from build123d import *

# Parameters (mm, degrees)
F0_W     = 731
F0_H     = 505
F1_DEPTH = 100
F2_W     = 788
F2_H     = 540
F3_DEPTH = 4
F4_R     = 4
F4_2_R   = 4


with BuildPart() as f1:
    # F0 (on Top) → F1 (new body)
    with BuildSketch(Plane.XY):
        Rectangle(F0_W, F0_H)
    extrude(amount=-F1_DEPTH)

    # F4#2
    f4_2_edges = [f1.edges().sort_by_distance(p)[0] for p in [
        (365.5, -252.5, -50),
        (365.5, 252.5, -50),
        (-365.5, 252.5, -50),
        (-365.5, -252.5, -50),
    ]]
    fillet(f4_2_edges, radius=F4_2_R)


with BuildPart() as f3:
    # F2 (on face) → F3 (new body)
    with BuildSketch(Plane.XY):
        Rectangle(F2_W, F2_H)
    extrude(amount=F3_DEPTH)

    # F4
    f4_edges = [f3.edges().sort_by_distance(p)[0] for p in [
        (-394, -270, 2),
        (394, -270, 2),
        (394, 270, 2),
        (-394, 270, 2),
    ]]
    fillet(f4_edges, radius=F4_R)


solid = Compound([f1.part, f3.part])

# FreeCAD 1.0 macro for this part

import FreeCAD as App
import Part
import Sketcher
from FreeCAD import Vector
Q = App.Units.Quantity


def edges_at(feature, points):
    """Names of the edges that pass closest to the given points."""
    edges = feature.Shape.Edges
    near = lambda p: min(range(len(edges)), key=lambda i: edges[i].distToShape(Part.Vertex(*p))[0])
    return sorted({f"Edge{near(p) + 1}" for p in points})


def add_polygon(sketch, points):
    """Adds a closed chain of lines whose ends are joined by coincident constraints."""
    first, n = sketch.GeometryCount, len(points)
    for a, b in zip(points, points[1:] + points[:1]):
        sketch.addGeometry(Part.LineSegment(App.Vector(*a, 0), App.Vector(*b, 0)), False)
    for i in range(n):
        sketch.addConstraint(Sketcher.Constraint("Coincident", first + i, 2, first + (i + 1) % n, 1))

doc = App.newDocument("Part")
body = doc.addObject("PartDesign::Body", "Body")

# Sketch on XY plane
sketch1 = doc.addObject("Sketcher::SketchObject", "Sketch")
body.addObject(sketch1)
sketch1.AttachmentSupport = (doc.XY_Plane, [""])
sketch1.MapMode = "FlatFace"
add_polygon(sketch1, [(-365.5, 252.5), (-365.5, -252.5), (365.5, -252.5), (365.5, 252.5)])  # lines 0-3
sketch1.addConstraint(Sketcher.Constraint("Vertical", 0))
sketch1.addConstraint(Sketcher.Constraint("Horizontal", 1))
sketch1.addConstraint(Sketcher.Constraint("Vertical", 2))
sketch1.addConstraint(Sketcher.Constraint("Horizontal", 3))
sketch1.addConstraint(Sketcher.Constraint("Symmetric", 0, 2, 2, 2, -1, 1))
sketch1.addConstraint(Sketcher.Constraint("DistanceX", 1, 1, 1, 2, Q("731 mm")))
sketch1.addConstraint(Sketcher.Constraint("DistanceY", 0, 2, 0, 1, Q("505 mm")))
pad1 = doc.addObject("PartDesign::Pad", "Pad")
body.addObject(pad1)
pad1.Profile = sketch1
pad1.Length = 100
pad1.Reversed = True
doc.recompute()

fillet = doc.addObject("PartDesign::Fillet", "Fillet")
body.addObject(fillet)
fillet.Base = (pad1, edges_at(pad1, [
    (365.5, -252.5, -50),
    (365.5, 252.5, -50),
    (-365.5, 252.5, -50),
    (-365.5, -252.5, -50),
]))
fillet.Radius = 4
body2 = doc.addObject("PartDesign::Body", "Body001")

# Sketch on XY plane
sketch2 = doc.addObject("Sketcher::SketchObject", "Sketch001")
body2.addObject(sketch2)
sketch2.AttachmentSupport = (doc.getObject("XY_Plane001"), [""])
sketch2.MapMode = "FlatFace"
add_polygon(sketch2, [(-394, 270), (-394, -270), (394, -270), (394, 270)])  # lines 0-3
sketch2.addConstraint(Sketcher.Constraint("Vertical", 0))
sketch2.addConstraint(Sketcher.Constraint("Horizontal", 1))
sketch2.addConstraint(Sketcher.Constraint("Vertical", 2))
sketch2.addConstraint(Sketcher.Constraint("Horizontal", 3))
sketch2.addConstraint(Sketcher.Constraint("Symmetric", 0, 2, 2, 2, -1, 1))
sketch2.addConstraint(Sketcher.Constraint("DistanceX", 1, 1, 1, 2, Q("788 mm")))
sketch2.addConstraint(Sketcher.Constraint("DistanceY", 0, 2, 0, 1, Q("540 mm")))
pad2 = doc.addObject("PartDesign::Pad", "Pad001")
body2.addObject(pad2)
pad2.Profile = sketch2
pad2.Length = 4
doc.recompute()

fillet2 = doc.addObject("PartDesign::Fillet", "Fillet001")
body2.addObject(fillet2)
fillet2.Base = (pad2, edges_at(pad2, [
    (-394, -270, 2),
    (394, -270, 2),
    (394, 270, 2),
    (-394, 270, 2),
]))
fillet2.Radius = 4

doc.recompute()
